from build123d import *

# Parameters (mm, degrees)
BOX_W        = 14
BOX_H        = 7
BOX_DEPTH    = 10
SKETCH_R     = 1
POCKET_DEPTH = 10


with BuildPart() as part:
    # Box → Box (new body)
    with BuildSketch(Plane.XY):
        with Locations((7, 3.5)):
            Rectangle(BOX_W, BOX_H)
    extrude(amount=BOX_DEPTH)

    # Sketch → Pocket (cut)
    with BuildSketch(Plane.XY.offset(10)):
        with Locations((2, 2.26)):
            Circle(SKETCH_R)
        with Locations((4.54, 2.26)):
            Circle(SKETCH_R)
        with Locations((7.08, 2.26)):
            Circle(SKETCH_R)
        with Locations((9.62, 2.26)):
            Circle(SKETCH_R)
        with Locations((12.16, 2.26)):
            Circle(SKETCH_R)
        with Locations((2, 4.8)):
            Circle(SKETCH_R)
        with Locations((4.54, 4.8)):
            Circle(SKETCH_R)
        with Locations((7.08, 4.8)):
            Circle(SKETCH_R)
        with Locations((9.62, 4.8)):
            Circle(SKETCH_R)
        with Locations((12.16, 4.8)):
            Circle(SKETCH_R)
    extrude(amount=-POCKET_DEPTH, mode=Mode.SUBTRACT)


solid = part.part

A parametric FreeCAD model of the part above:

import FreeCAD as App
import Part
import Sketcher

V = App.Vector
Q = App.Units.Quantity

doc = App.newDocument("Part")
params = doc.addObject("Spreadsheet::Sheet", "Params")
for row, (alias, value) in enumerate([
    ("sketch1_width", "14 mm"),
    ("sketch1_height", "7 mm"),
    ("pad1_length", "10 mm"),
    ("sketch2_diameter", "2 mm"),
    ("pocket1_length", "10 mm"),
], start=1):
    params.set(f"A{row}", alias)
    params.set(f"B{row}", "=" + value)
    params.setAlias(f"B{row}", alias)

body = doc.addObject("PartDesign::Body", "Body")

sketch1 = body.newObject("Sketcher::SketchObject", "Sketch")
sketch1.AttachmentSupport = (doc.getObject("XY_Plane"), [""])
sketch1.MapMode = "FlatFace"
sketch1.addGeometry(Part.LineSegment(V(0, 7, 0), V(0, 0, 0)), False)
sketch1.addGeometry(Part.LineSegment(V(0, 0, 0), V(14, 0, 0)), False)
sketch1.addGeometry(Part.LineSegment(V(14, 0, 0), V(14, 7, 0)), False)
sketch1.addGeometry(Part.LineSegment(V(14, 7, 0), V(0, 7, 0)), False)
sketch1.addConstraint(Sketcher.Constraint("Coincident", 0, 2, 1, 1))
sketch1.addConstraint(Sketcher.Constraint("Coincident", 1, 2, 2, 1))
sketch1.addConstraint(Sketcher.Constraint("Coincident", 2, 2, 3, 1))
sketch1.addConstraint(Sketcher.Constraint("Coincident", 3, 2, 0, 1))
sketch1.addConstraint(Sketcher.Constraint("Vertical", 0))
sketch1.addConstraint(Sketcher.Constraint("Horizontal", 1))
sketch1.addConstraint(Sketcher.Constraint("Vertical", 2))
sketch1.addConstraint(Sketcher.Constraint("Horizontal", 3))
sketch1.addConstraint(Sketcher.Constraint("Coincident", 0, 2, -1, 1))
sketch1.addConstraint(Sketcher.Constraint("DistanceX", 1, 1, 1, 2, Q("14 mm")))
sketch1.addConstraint(Sketcher.Constraint("DistanceY", 0, 2, 0, 1, Q("7 mm")))
sketch1.setExpression("Constraints[9]", "Params.sketch1_width")
sketch1.setExpression("Constraints[10]", "Params.sketch1_height")
pad1 = body.newObject("PartDesign::Pad", "Pad")
pad1.Profile = sketch1
pad1.setExpression("Length", "Params.pad1_length")

sketch2 = body.newObject("Sketcher::SketchObject", "Sketch001")
sketch2.AttachmentSupport = (doc.getObject("XY_Plane"), [""])
sketch2.MapMode = "FlatFace"
sketch2.AttachmentOffset = App.Placement(V(0, 0, 10), App.Rotation())
sketch2.addGeometry(Part.Circle(V(2, 2.3, 0), V(0, 0, 1), 1), False)
sketch2.addGeometry(Part.Circle(V(4.5, 2.3, 0), V(0, 0, 1), 1), False)
sketch2.addGeometry(Part.Circle(V(7.1, 2.3, 0), V(0, 0, 1), 1), False)
sketch2.addGeometry(Part.Circle(V(9.6, 2.3, 0), V(0, 0, 1), 1), False)
sketch2.addGeometry(Part.Circle(V(12.2, 2.3, 0), V(0, 0, 1), 1), False)
sketch2.addGeometry(Part.Circle(V(2, 4.8, 0), V(0, 0, 1), 1), False)
sketch2.addGeometry(Part.Circle(V(4.5, 4.8, 0), V(0, 0, 1), 1), False)
sketch2.addGeometry(Part.Circle(V(7.1, 4.8, 0), V(0, 0, 1), 1), False)
sketch2.addGeometry(Part.Circle(V(9.6, 4.8, 0), V(0, 0, 1), 1), False)
sketch2.addGeometry(Part.Circle(V(12.2, 4.8, 0), V(0, 0, 1), 1), False)
sketch2.addConstraint(Sketcher.Constraint("Equal", 0, 1))
sketch2.addConstraint(Sketcher.Constraint("Equal", 1, 2))
sketch2.addConstraint(Sketcher.Constraint("Equal", 2, 3))
sketch2.addConstraint(Sketcher.Constraint("Equal", 3, 4))
sketch2.addConstraint(Sketcher.Constraint("Equal", 4, 5))
sketch2.addConstraint(Sketcher.Constraint("Equal", 5, 6))
sketch2.addConstraint(Sketcher.Constraint("Equal", 6, 7))
sketch2.addConstraint(Sketcher.Constraint("Equal", 7, 8))
sketch2.addConstraint(Sketcher.Constraint("Equal", 8, 9))
sketch2.addConstraint(Sketcher.Constraint("Horizontal", 0, 3, 1, 3))
sketch2.addConstraint(Sketcher.Constraint("Horizontal", 1, 3, 2, 3))
sketch2.addConstraint(Sketcher.Constraint("Horizontal", 2, 3, 3, 3))
sketch2.addConstraint(Sketcher.Constraint("Horizontal", 3, 3, 4, 3))
sketch2.addConstraint(Sketcher.Constraint("Horizontal", 5, 3, 6, 3))
sketch2.addConstraint(Sketcher.Constraint("Horizontal", 6, 3, 7, 3))
sketch2.addConstraint(Sketcher.Constraint("Horizontal", 7, 3, 8, 3))
sketch2.addConstraint(Sketcher.Constraint("Horizontal", 8, 3, 9, 3))
sketch2.addConstraint(Sketcher.Constraint("Vertical", 0, 3, 5, 3))
sketch2.addConstraint(Sketcher.Constraint("Vertical", 1, 3, 6, 3))
sketch2.addConstraint(Sketcher.Constraint("Vertical", 2, 3, 7, 3))
sketch2.addConstraint(Sketcher.Constraint("Vertical", 3, 3, 8, 3))
sketch2.addConstraint(Sketcher.Constraint("Vertical", 4, 3, 9, 3))
sketch2.addConstraint(Sketcher.Constraint("Diameter", 0, Q("2 mm")))
sketch2.addConstraint(Sketcher.Constraint("DistanceX", -1, 1, 0, 3, Q("2 mm")))
sketch2.addConstraint(Sketcher.Constraint("DistanceY", -1, 1, 5, 3, Q("4.8 mm")))
sketch2.addConstraint(Sketcher.Constraint("DistanceY", -1, 1, 0, 3, Q("2.26 mm")))
sketch2.addConstraint(Sketcher.Constraint("DistanceX", -1, 1, 1, 3, Q("4.54 mm")))
sketch2.addConstraint(Sketcher.Constraint("DistanceX", -1, 1, 2, 3, Q("7.08 mm")))
sketch2.addConstraint(Sketcher.Constraint("DistanceX", -1, 1, 3, 3, Q("9.62 mm")))
sketch2.addConstraint(Sketcher.Constraint("DistanceX", -1, 1, 4, 3, Q("12.16 mm")))
sketch2.setExpression("Constraints[22]", "Params.sketch2_diameter")
pocket1 = body.newObject("PartDesign::Pocket", "Pocket")
pocket1.Profile = sketch2
pocket1.setExpression("Length", "Params.pocket1_length")

doc.recompute()
